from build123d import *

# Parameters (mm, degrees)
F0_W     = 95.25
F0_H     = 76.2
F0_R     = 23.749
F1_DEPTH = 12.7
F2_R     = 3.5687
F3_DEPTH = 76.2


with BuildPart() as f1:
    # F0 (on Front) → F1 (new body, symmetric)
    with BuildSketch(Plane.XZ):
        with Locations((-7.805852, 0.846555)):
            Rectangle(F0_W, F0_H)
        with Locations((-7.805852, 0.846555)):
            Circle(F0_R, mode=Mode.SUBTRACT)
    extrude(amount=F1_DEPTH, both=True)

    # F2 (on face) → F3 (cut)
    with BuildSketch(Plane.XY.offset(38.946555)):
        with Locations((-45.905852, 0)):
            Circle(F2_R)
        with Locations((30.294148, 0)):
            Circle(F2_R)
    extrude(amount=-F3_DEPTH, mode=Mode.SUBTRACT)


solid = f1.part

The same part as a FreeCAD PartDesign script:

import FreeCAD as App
import Part
import Sketcher

V = App.Vector
Q = App.Units.Quantity

doc = App.newDocument("Part")
params = doc.addObject("Spreadsheet::Sheet", "Params")
for row, (alias, value) in enumerate([
    ("sketch1_diameter", "1.87 in"),
    ("sketch1_height", "3 in"),
    ("sketch1_width", "3.75 in"),
    ("pad1_length", "1 in"),
    ("sketch2_diameter", "0.281 in"),
    ("pocket1_length", "3 in"),
], start=1):
    params.set(f"A{row}", alias)
    params.set(f"B{row}", "=" + value)
    params.setAlias(f"B{row}", alias)

body = doc.addObject("PartDesign::Body", "Body")

# Sketch on XZ plane
sketch1 = doc.addObject("Sketcher::SketchObject", "Sketch")
body.addObject(sketch1)
sketch1.AttachmentSupport = (doc.XZ_Plane, [""])
sketch1.MapMode = "FlatFace"
sketch1.addGeometry(Part.LineSegment(V(-55, 39, 0), V(-55, -37, 0)), False)
sketch1.addGeometry(Part.LineSegment(V(-55, -37, 0), V(40, -37, 0)), False)
sketch1.addGeometry(Part.LineSegment(V(40, -37, 0), V(40, 39, 0)), False)
sketch1.addGeometry(Part.LineSegment(V(40, 39, 0), V(-55, 39, 0)), False)
sketch1.addGeometry(Part.Circle(V(-8, 1, 0), V(0, 0, 1), 24), False)
sketch1.addConstraint(Sketcher.Constraint("Coincident", 0, 2, 1, 1))
sketch1.addConstraint(Sketcher.Constraint("Coincident", 1, 2, 2, 1))
sketch1.addConstraint(Sketcher.Constraint("Coincident", 2, 2, 3, 1))
sketch1.addConstraint(Sketcher.Constraint("Coincident", 3, 2, 0, 1))
sketch1.addConstraint(Sketcher.Constraint("Vertical", 0))
sketch1.addConstraint(Sketcher.Constraint("Horizontal", 1))
sketch1.addConstraint(Sketcher.Constraint("Vertical", 2))
sketch1.addConstraint(Sketcher.Constraint("Horizontal", 3))
sketch1.addConstraint(Sketcher.Constraint("Diameter", 4, Q("1.87 in")))
sketch1.addConstraint(Sketcher.Constraint("DistanceY", 0, 2, 0, 1, Q("3 in")))
sketch1.addConstraint(Sketcher.Constraint("DistanceX", 1, 1, 1, 2, Q("3.75 in")))
sketch1.addConstraint(Sketcher.Constraint("DistanceY", 0, 2, 4, 3, Q("1.5 in")))
sketch1.addConstraint(Sketcher.Constraint("DistanceX", 0, 2, 4, 3, Q("1.875 in")))
sketch1.addConstraint(Sketcher.Constraint("DistanceX", 4, 3, -1, 1, Q("7.805852 mm")))
sketch1.addConstraint(Sketcher.Constraint("DistanceY", -1, 1, 4, 3, Q("0.846555 mm")))
sketch1.setExpression("Constraints[8]", "Params.sketch1_diameter")
sketch1.setExpression("Constraints[9]", "Params.sketch1_height")
sketch1.setExpression("Constraints[10]", "Params.sketch1_width")
pad1 = doc.addObject("PartDesign::Pad", "Pad")
body.addObject(pad1)
pad1.Profile = sketch1
pad1.setExpression("Length", "Params.pad1_length")
pad1.Midplane = True

# Sketch on XY plane
sketch2 = doc.addObject("Sketcher::SketchObject", "Sketch001")
body.addObject(sketch2)
sketch2.AttachmentSupport = (doc.XY_Plane, [""])
sketch2.MapMode = "FlatFace"
sketch2.AttachmentOffset = App.Placement(V(0, 0, 38.946555), App.Rotation())
sketch2.addGeometry(Part.Circle(V(-45.9, 0, 0), V(0, 0, 1), 3.6), False)
sketch2.addGeometry(Part.Circle(V(30.3, 0, 0), V(0, 0, 1), 3.6), False)
sketch2.addConstraint(Sketcher.Constraint("Equal", 0, 1))
sketch2.addConstraint(Sketcher.Constraint("PointOnObject", 0, 3, -1))
sketch2.addConstraint(Sketcher.Constraint("PointOnObject", 1, 3, -1))
sketch2.addConstraint(Sketcher.Constraint("Diameter", 0, Q("0.281 in")))
sketch2.addConstraint(Sketcher.Constraint("DistanceX", 0, 3, 1, 3, Q("3 in")))
sketch2.addConstraint(Sketcher.Constraint("DistanceX", -1, 1, 1, 3, Q("30.294148 mm")))
sketch2.setExpression("Constraints[3]", "Params.sketch2_diameter")
pocket1 = doc.addObject("PartDesign::Pocket", "Pocket")
body.addObject(pocket1)
pocket1.Profile = sketch2
pocket1.setExpression("Length", "Params.pocket1_length")

doc.recompute()
